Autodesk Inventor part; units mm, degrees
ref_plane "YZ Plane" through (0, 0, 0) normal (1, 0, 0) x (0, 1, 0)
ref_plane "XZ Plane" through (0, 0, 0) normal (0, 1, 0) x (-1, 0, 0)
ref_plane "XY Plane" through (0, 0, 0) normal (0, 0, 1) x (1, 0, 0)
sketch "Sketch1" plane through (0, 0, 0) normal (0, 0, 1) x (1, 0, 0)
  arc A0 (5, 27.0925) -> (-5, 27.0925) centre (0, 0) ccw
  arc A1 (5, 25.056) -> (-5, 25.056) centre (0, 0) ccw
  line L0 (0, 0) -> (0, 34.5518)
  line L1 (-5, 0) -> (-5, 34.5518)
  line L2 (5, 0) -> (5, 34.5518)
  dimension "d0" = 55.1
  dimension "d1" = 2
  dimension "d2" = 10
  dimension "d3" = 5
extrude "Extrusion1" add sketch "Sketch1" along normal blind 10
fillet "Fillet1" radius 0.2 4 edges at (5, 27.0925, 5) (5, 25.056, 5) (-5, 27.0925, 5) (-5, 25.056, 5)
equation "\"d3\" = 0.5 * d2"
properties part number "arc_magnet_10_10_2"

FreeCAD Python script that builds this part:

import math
import FreeCAD as App
import Part
import Sketcher

V = App.Vector
Q = App.Units.Quantity


def edges_at(feature, points):
    """Names of the edges that pass closest to the given points."""
    edges = feature.Shape.Edges
    near = lambda p: min(range(len(edges)), key=lambda i: edges[i].distToShape(Part.Vertex(*p))[0])
    return sorted({f"Edge{near(p) + 1}" for p in points})

doc = App.newDocument("Part")
params = doc.addObject("Spreadsheet::Sheet", "Params")
for row, (alias, value) in enumerate([
    ("sketch1_radius", "27.55 mm"),
    ("sketch1_radius2", "25.55 mm"),
    ("pad1_length", "10 mm"),
    ("fillet_radius", "0.2 mm"),
], start=1):
    params.set(f"A{row}", alias)
    params.set(f"B{row}", "=" + value)
    params.setAlias(f"B{row}", alias)

body = doc.addObject("PartDesign::Body", "Body")

# Sketch on XY plane
sketch1 = body.newObject("Sketcher::SketchObject", "Sketch")
sketch1.AttachmentSupport = (doc.getObject("XY_Plane"), [""])
sketch1.MapMode = "FlatFace"
sketch1.addGeometry([
    Part.LineSegment(V(5, 25.1, 0), V(5, 27.1, 0)),
    Part.ArcOfCircle(Part.Circle(V(0, 0, 0), V(0, 0, 1), 27.6), math.radians(80), math.radians(100)),
    Part.LineSegment(V(-5, 27.1, 0), V(-5, 25.1, 0)),
    Part.ArcOfCircle(Part.Circle(V(0, 0, 0), V(0, 0, 1), 25.6), math.radians(79), math.radians(101)),
], False)
sketch1.addConstraint([
    Sketcher.Constraint("Coincident", 0, 2, 1, 1),
    Sketcher.Constraint("Coincident", 1, 2, 2, 1),
    Sketcher.Constraint("Coincident", 2, 2, 3, 2),
    Sketcher.Constraint("Coincident", 3, 1, 0, 1),
    Sketcher.Constraint("Vertical", 0),
    Sketcher.Constraint("Vertical", 2),
    Sketcher.Constraint("Coincident", 1, 3, -1, 1),
    Sketcher.Constraint("Coincident", 3, 3, -1, 1),
    Sketcher.Constraint("Horizontal", 0, 2, 1, 2),
    Sketcher.Constraint("Radius", 1, Q("27.55 mm")),
    Sketcher.Constraint("DistanceX", -1, 1, 0, 2, Q("5 mm")),
    Sketcher.Constraint("Radius", 3, Q("25.55 mm")),
])
sketch1.setExpression("Constraints[9]", "Params.sketch1_radius")
sketch1.setExpression("Constraints[11]", "Params.sketch1_radius2")
pad1 = body.newObject("PartDesign::Pad", "Pad")
pad1.Profile = sketch1
pad1.setExpression("Length", "Params.pad1_length")
doc.recompute()

fillet = body.newObject("PartDesign::Fillet", "Fillet")
fillet.Base = (pad1, edges_at(pad1, [
    (5, 27.093, 5),
    (5, 25.056, 5),
    (-5, 27.093, 5),
    (-5, 25.056, 5),
]))
fillet.setExpression("Radius", "Params.fillet_radius")

doc.recompute()
